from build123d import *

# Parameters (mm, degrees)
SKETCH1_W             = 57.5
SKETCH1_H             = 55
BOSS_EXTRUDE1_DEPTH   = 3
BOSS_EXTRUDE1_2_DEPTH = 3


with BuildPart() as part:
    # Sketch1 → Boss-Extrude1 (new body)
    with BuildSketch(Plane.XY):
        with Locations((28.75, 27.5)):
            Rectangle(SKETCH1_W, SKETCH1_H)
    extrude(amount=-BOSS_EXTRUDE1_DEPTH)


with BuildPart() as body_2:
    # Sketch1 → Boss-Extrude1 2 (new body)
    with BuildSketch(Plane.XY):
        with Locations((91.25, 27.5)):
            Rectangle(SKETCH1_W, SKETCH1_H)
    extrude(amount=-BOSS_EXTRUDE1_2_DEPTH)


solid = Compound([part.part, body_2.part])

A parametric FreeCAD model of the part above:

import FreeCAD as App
import Part
import Sketcher
from FreeCAD import Vector


def add_polygon(sketch, points):
    """Adds a closed chain of lines whose ends are joined by coincident constraints."""
    first, n = sketch.GeometryCount, len(points)
    for a, b in zip(points, points[1:] + points[:1]):
        sketch.addGeometry(Part.LineSegment(App.Vector(*a, 0), App.Vector(*b, 0)), False)
    for i in range(n):
        sketch.addConstraint(Sketcher.Constraint("Coincident", first + i, 2, first + (i + 1) % n, 1))

doc = App.newDocument("Part")
body = doc.addObject("PartDesign::Body", "Body")

# Sketch on XY plane
sketch1 = body.newObject("Sketcher::SketchObject", "Sketch")
sketch1.AttachmentSupport = (doc.getObject("XY_Plane"), [""])
sketch1.MapMode = "FlatFace"
add_polygon(sketch1, [(0, 55), (0, 0), (57.5, 0), (57.5, 55)])  # lines 0-3
sketch1.addConstraint([
    Sketcher.Constraint("Vertical", 0),
    Sketcher.Constraint("Horizontal", 1),
    Sketcher.Constraint("Vertical", 2),
    Sketcher.Constraint("Horizontal", 3),
    Sketcher.Constraint("Coincident", 0, 2, -1, 1),
    Sketcher.Constraint("DistanceY", 0, 2, 0, 1, 55.0),
    Sketcher.Constraint("DistanceX", 1, 1, 1, 2, 57.5),
])
pad1 = body.newObject("PartDesign::Pad", "Pad")
pad1.Profile = sketch1
pad1.Length = 3
pad1.Reversed = True
body2 = doc.addObject("PartDesign::Body", "Body001")

# Sketch on XY plane
sketch2 = body2.newObject("Sketcher::SketchObject", "Sketch001")
sketch2.AttachmentSupport = (doc.getObject("XY_Plane001"), [""])
sketch2.MapMode = "FlatFace"
add_polygon(sketch2, [(62.5, 55), (62.5, 0), (120, 0), (120, 55)])  # lines 0-3
sketch2.addConstraint([
    Sketcher.Constraint("Vertical", 0),
    Sketcher.Constraint("Horizontal", 1),
    Sketcher.Constraint("Vertical", 2),
    Sketcher.Constraint("Horizontal", 3),
    Sketcher.Constraint("PointOnObject", 0, 2, -1),
    Sketcher.Constraint("DistanceY", 0, 2, 0, 1, 55.0),
    Sketcher.Constraint("DistanceX", 1, 1, 1, 2, 57.5),
    Sketcher.Constraint("DistanceX", -1, 1, 1, 2, 120.0),
])
pad2 = body2.newObject("PartDesign::Pad", "Pad001")
pad2.Profile = sketch2
pad2.Length = 3
pad2.Reversed = True

doc.recompute()
